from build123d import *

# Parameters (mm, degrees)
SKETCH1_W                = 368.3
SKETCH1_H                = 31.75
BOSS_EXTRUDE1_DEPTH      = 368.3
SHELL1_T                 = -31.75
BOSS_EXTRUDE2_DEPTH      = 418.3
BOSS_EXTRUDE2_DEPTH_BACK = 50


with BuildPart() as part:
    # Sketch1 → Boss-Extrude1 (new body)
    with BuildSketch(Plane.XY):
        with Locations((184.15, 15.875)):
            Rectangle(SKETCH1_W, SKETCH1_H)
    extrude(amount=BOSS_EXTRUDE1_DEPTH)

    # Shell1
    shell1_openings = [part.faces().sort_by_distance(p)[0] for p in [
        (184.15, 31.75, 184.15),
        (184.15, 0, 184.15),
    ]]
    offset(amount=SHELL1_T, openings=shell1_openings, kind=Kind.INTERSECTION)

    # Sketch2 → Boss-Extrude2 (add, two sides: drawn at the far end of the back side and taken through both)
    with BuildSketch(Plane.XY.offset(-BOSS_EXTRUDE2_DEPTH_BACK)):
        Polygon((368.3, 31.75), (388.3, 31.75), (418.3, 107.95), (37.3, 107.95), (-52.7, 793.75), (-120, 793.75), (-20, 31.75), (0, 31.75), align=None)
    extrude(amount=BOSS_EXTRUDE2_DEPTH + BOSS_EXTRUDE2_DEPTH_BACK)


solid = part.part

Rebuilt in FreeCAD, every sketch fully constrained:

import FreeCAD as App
import Part
import Sketcher
Q = App.Units.Quantity


def faces_at(feature, points):
    """Names of the faces that lie closest to the given points."""
    faces = feature.Shape.Faces
    near = lambda p: min(range(len(faces)), key=lambda i: faces[i].distToShape(Part.Vertex(*p))[0])
    return sorted({f"Face{near(p) + 1}" for p in points})

doc = App.newDocument("Part")
body = doc.addObject("PartDesign::Body", "Body")

sketch1 = body.newObject("Sketcher::SketchObject", "Sketch")
sketch1.AttachmentSupport = (doc.getObject("XY_Plane"), [""])
sketch1.MapMode = "FlatFace"
sketch1.addGeometry([
    Part.LineSegment(App.Vector(0, 32, 0), App.Vector(0, 0, 0)),
    Part.LineSegment(App.Vector(0, 0, 0), App.Vector(368, 0, 0)),
    Part.LineSegment(App.Vector(368, 0, 0), App.Vector(368, 32, 0)),
    Part.LineSegment(App.Vector(368, 32, 0), App.Vector(0, 32, 0)),
], False)
sketch1.addConstraint([
    Sketcher.Constraint("Coincident", 0, 2, 1, 1),
    Sketcher.Constraint("Coincident", 1, 2, 2, 1),
    Sketcher.Constraint("Coincident", 2, 2, 3, 1),
    Sketcher.Constraint("Coincident", 3, 2, 0, 1),
    Sketcher.Constraint("Vertical", 0),
    Sketcher.Constraint("Horizontal", 1),
    Sketcher.Constraint("Vertical", 2),
    Sketcher.Constraint("Horizontal", 3),
    Sketcher.Constraint("Coincident", 0, 2, -1, 1),
    Sketcher.Constraint("DistanceX", 1, 1, 1, 2, Q("368.3 mm")),
    Sketcher.Constraint("DistanceY", 0, 2, 0, 1, Q("31.75 mm")),
])
pad1 = body.newObject("PartDesign::Pad", "Pad")
pad1.Profile = sketch1
pad1.Length = 368.3
doc.recompute()

thickness = body.newObject("PartDesign::Thickness", "Thickness")
thickness.Base = (pad1, faces_at(pad1, [(184.15, 31.75, 184.15), (184.15, 0, 184.15)]))
thickness.Value = 31.75
thickness.Reversed = True
thickness.Join = "Intersection"

sketch2 = body.newObject("Sketcher::SketchObject", "Sketch001")
sketch2.AttachmentSupport = (doc.getObject("XY_Plane"), [""])
sketch2.MapMode = "FlatFace"
sketch2.addGeometry([
    Part.LineSegment(App.Vector(388, 32, 0), App.Vector(418, 108, 0)),
    Part.LineSegment(App.Vector(418, 108, 0), App.Vector(37, 108, 0)),
    Part.LineSegment(App.Vector(37, 108, 0), App.Vector(-53, 794, 0)),
    Part.LineSegment(App.Vector(-53, 794, 0), App.Vector(-120, 794, 0)),
    Part.LineSegment(App.Vector(-120, 794, 0), App.Vector(-20, 32, 0)),
    Part.LineSegment(App.Vector(-20, 32, 0), App.Vector(388, 32, 0)),
], False)
sketch2.addConstraint([
    Sketcher.Constraint("Coincident", 0, 2, 1, 1),
    Sketcher.Constraint("Coincident", 1, 2, 2, 1),
    Sketcher.Constraint("Coincident", 2, 2, 3, 1),
    Sketcher.Constraint("Coincident", 3, 2, 4, 1),
    Sketcher.Constraint("Coincident", 4, 2, 5, 1),
    Sketcher.Constraint("Coincident", 5, 2, 0, 1),
    Sketcher.Constraint("Horizontal", 1),
    Sketcher.Constraint("Horizontal", 3),
    Sketcher.Constraint("Horizontal", 5),
    Sketcher.Constraint("Parallel", 2, 4),
    Sketcher.Constraint("DistanceX", 1, 2, 1, 1, Q("381 mm")),
    Sketcher.Constraint("DistanceX", 3, 2, 3, 1, Q("67.3 mm")),
    Sketcher.Constraint("DistanceX", 5, 1, 5, 2, Q("408.3 mm")),
    Sketcher.Constraint("DistanceX", 3, 2, -1, 1, Q("120 mm")),
    Sketcher.Constraint("DistanceX", 4, 2, -1, 1, Q("20 mm")),
    Sketcher.Constraint("DistanceX", 2, 2, 1, 2, Q("90 mm")),
    Sketcher.Constraint("DistanceY", 4, 2, 2, 2, Q("762 mm")),
    Sketcher.Constraint("DistanceY", -1, 1, 0, 2, Q("107.95 mm")),
])
pad2 = body.newObject("PartDesign::Pad", "Pad001")
pad2.Profile = sketch2
pad2.Type = "TwoLengths"
pad2.Length = 418.3
pad2.Length2 = 50

doc.recompute()
